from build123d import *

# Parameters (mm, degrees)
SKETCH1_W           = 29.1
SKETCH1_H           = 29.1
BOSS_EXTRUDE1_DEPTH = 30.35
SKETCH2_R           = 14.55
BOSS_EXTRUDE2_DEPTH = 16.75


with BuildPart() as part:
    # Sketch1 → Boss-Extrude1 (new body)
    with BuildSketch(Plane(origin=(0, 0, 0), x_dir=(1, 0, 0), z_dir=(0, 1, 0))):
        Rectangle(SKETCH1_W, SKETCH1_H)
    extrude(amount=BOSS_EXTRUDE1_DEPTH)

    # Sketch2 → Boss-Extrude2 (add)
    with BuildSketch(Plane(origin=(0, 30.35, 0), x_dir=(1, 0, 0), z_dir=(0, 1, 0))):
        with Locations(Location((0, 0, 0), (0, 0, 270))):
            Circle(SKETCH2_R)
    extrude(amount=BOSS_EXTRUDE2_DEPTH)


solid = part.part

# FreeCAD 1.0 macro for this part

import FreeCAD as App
import Part
import Sketcher
from FreeCAD import Vector
Q = App.Units.Quantity

doc = App.newDocument("Part")
body = doc.addObject("PartDesign::Body", "Body")

sketch1 = body.newObject("Sketcher::SketchObject", "Sketch")
sketch1.AttachmentSupport = (doc.getObject("XZ_Plane"), [""])
sketch1.MapMode = "FlatFace"
sketch1.addGeometry(Part.LineSegment(Vector(-15, -15, 0), Vector(-15, 15, 0)), False)
sketch1.addGeometry(Part.LineSegment(Vector(-15, 15, 0), Vector(15, 15, 0)), False)
sketch1.addGeometry(Part.LineSegment(Vector(15, 15, 0), Vector(15, -15, 0)), False)
sketch1.addGeometry(Part.LineSegment(Vector(15, -15, 0), Vector(-15, -15, 0)), False)
sketch1.addConstraint(Sketcher.Constraint("Coincident", 0, 2, 1, 1))
sketch1.addConstraint(Sketcher.Constraint("Coincident", 1, 2, 2, 1))
sketch1.addConstraint(Sketcher.Constraint("Coincident", 2, 2, 3, 1))
sketch1.addConstraint(Sketcher.Constraint("Coincident", 3, 2, 0, 1))
sketch1.addConstraint(Sketcher.Constraint("Vertical", 0))
sketch1.addConstraint(Sketcher.Constraint("Horizontal", 1))
sketch1.addConstraint(Sketcher.Constraint("Vertical", 2))
sketch1.addConstraint(Sketcher.Constraint("Horizontal", 3))
sketch1.addConstraint(Sketcher.Constraint("Symmetric", 0, 2, 2, 2, -1, 1))
sketch1.addConstraint(Sketcher.Constraint("Equal", 3, 0))
sketch1.addConstraint(Sketcher.Constraint("DistanceX", 1, 1, 1, 2, Q("29.1 mm")))
pad1 = body.newObject("PartDesign::Pad", "Pad")
pad1.Profile = sketch1
pad1.Length = 30.35
pad1.Reversed = True

sketch2 = body.newObject("Sketcher::SketchObject", "Sketch001")
sketch2.AttachmentSupport = (doc.getObject("XZ_Plane"), [""])
sketch2.MapMode = "FlatFace"
sketch2.AttachmentOffset = App.Placement(Vector(0, 0, -30.35), App.Rotation())
sketch2.addGeometry(Part.Circle(Vector(0, 0, 0), Vector(0, 0, 1), 15), False)
sketch2.addConstraint(Sketcher.Constraint("Coincident", 0, 3, -1, 1))
sketch2.addConstraint(Sketcher.Constraint("Diameter", 0, Q("29.1 mm")))
pad2 = body.newObject("PartDesign::Pad", "Pad001")
pad2.Profile = sketch2
pad2.Length = 16.75
pad2.Reversed = True

doc.recompute()
